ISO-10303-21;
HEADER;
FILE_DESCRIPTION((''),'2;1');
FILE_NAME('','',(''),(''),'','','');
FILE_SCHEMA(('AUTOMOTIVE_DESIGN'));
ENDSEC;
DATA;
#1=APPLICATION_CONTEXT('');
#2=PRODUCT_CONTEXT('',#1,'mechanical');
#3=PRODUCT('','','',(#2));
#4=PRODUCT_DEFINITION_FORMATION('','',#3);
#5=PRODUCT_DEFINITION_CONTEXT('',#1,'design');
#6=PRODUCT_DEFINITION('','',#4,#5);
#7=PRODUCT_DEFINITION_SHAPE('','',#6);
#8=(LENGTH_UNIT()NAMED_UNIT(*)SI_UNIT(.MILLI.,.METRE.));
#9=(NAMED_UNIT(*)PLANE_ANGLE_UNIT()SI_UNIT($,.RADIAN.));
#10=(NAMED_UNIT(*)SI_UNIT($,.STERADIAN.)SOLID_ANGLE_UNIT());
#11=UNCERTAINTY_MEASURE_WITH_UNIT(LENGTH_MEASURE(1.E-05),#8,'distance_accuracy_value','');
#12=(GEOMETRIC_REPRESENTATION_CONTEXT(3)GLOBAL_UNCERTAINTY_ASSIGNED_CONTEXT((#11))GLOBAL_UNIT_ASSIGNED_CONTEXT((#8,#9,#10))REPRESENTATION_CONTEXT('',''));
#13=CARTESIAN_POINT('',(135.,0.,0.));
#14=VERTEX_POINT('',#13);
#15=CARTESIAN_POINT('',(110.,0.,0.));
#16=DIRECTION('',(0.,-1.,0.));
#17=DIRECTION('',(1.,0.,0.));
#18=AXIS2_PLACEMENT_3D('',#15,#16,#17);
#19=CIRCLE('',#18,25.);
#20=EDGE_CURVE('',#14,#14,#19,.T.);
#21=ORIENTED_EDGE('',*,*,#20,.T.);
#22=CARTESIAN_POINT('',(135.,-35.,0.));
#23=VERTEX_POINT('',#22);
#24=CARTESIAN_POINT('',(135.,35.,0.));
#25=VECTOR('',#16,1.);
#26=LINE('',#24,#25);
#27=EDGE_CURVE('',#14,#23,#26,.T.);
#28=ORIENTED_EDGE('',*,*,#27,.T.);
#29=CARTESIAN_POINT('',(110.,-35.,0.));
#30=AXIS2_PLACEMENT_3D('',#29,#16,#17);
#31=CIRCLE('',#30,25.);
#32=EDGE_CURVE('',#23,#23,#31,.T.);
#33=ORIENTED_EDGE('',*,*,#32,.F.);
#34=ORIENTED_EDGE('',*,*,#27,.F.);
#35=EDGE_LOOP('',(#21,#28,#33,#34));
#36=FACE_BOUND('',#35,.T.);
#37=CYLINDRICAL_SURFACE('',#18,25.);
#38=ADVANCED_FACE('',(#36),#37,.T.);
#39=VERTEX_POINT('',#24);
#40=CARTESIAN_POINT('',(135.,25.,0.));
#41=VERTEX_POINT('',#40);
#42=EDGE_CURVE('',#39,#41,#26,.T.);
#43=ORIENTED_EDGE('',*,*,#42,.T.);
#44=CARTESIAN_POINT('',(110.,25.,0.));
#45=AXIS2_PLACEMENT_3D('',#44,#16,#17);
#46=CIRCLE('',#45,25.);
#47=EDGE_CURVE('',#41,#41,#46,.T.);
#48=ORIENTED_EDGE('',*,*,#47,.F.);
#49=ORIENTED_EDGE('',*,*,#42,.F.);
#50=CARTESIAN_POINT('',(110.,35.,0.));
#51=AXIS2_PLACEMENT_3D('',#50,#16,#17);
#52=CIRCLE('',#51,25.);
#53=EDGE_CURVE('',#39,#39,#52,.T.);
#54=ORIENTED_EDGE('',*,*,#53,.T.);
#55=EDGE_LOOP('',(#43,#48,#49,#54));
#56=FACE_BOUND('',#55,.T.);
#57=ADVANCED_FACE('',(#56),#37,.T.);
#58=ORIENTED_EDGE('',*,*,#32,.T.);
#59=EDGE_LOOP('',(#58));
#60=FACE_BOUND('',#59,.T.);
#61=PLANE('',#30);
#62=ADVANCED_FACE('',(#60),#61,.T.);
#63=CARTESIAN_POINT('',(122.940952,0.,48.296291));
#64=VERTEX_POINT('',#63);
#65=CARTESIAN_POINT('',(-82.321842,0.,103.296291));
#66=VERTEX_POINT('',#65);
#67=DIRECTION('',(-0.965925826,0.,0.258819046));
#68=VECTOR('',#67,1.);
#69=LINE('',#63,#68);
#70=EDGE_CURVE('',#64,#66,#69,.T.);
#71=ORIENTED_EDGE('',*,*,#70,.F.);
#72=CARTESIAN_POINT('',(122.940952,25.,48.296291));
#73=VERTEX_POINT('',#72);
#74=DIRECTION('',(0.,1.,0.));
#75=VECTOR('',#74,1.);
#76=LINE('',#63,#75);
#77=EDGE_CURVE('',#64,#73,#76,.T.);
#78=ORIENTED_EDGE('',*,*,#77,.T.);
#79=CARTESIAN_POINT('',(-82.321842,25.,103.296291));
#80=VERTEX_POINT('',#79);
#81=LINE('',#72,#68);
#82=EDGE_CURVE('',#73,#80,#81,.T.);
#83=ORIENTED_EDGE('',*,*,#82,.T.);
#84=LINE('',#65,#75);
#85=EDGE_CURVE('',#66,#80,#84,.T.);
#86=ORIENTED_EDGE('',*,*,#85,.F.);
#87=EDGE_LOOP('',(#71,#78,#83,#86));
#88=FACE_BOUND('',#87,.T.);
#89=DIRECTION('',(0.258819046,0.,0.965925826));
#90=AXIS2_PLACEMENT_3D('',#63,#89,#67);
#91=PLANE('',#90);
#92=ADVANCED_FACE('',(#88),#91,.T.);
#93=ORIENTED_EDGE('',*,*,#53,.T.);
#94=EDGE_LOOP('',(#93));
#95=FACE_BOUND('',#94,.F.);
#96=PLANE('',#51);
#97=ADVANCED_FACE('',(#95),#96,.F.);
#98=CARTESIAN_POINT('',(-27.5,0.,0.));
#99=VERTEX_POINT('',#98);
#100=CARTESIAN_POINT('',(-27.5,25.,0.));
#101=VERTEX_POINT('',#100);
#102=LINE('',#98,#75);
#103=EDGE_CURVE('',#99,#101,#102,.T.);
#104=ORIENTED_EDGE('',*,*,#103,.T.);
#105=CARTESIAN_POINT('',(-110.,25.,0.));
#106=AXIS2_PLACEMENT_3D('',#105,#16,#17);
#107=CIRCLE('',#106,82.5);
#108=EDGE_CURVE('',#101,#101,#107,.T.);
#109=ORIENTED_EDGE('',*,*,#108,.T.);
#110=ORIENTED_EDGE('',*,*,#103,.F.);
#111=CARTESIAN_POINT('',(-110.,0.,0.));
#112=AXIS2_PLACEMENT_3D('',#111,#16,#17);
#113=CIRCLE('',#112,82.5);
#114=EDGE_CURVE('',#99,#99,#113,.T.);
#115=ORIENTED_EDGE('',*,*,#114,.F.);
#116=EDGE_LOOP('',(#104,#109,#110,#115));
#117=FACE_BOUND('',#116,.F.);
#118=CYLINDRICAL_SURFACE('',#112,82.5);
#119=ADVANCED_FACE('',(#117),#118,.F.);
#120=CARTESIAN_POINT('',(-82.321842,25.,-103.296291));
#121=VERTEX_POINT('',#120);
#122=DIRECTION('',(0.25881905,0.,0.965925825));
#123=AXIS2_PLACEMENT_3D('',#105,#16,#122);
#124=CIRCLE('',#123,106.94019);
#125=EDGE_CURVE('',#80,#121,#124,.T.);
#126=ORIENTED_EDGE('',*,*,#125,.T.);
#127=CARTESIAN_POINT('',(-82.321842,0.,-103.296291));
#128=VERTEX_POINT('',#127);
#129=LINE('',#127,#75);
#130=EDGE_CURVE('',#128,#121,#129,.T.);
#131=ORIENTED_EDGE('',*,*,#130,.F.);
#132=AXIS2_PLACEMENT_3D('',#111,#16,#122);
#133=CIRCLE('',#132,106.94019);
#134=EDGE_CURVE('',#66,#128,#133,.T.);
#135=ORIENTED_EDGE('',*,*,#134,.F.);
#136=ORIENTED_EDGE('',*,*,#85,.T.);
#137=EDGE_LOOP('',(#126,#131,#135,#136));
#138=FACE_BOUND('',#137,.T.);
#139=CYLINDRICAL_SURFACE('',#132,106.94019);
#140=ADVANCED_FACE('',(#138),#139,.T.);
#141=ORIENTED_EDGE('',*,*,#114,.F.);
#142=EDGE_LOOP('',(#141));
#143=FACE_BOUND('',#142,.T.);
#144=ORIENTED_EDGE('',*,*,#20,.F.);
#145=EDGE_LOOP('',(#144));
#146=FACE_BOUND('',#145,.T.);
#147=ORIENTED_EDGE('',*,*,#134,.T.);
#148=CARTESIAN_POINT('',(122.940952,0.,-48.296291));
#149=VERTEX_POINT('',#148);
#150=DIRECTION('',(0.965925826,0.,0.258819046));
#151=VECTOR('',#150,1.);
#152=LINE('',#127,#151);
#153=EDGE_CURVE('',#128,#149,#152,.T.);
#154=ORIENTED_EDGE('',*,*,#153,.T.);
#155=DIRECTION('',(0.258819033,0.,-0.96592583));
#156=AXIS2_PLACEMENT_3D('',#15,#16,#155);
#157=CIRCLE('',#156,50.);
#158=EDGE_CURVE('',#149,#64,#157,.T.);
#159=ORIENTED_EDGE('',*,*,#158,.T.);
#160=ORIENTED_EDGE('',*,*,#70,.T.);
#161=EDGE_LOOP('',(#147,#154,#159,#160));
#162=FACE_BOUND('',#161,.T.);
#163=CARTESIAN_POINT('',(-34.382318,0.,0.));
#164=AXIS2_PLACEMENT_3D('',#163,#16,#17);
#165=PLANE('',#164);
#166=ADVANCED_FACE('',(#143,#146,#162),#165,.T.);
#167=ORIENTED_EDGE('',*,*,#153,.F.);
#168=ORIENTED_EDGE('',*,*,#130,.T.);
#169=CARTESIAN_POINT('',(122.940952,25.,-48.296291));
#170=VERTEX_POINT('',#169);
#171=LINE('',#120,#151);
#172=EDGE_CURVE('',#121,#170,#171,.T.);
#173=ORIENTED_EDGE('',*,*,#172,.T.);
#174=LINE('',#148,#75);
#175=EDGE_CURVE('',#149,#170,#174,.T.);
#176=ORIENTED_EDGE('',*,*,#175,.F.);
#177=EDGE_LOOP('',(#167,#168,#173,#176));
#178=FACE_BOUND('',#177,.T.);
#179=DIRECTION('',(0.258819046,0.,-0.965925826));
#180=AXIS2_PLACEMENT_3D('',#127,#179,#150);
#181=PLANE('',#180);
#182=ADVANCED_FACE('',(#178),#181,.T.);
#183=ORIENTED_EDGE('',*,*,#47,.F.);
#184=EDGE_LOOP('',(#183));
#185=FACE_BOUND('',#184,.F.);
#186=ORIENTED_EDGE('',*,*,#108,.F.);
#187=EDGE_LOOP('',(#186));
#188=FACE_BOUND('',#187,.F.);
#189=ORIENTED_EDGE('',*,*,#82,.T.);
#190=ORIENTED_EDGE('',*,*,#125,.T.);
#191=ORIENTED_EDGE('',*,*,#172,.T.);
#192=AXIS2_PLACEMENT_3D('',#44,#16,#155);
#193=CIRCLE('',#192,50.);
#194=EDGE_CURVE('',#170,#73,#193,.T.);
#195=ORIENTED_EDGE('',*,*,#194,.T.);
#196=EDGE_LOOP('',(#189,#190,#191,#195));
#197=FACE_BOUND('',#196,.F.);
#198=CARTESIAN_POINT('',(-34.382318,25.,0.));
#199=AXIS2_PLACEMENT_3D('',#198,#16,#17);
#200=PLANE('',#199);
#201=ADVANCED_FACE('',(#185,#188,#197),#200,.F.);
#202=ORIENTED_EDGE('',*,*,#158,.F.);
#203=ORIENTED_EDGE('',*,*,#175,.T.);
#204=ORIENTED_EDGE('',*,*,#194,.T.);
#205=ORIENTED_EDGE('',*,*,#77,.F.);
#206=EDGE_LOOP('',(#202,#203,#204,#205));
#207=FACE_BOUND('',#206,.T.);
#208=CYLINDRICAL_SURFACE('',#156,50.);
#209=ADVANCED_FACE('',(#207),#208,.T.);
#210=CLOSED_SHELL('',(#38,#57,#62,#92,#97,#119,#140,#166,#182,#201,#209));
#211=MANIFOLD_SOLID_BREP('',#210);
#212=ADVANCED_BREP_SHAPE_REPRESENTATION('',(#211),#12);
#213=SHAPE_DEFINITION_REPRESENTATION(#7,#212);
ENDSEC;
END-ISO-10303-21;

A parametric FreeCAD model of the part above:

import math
import FreeCAD as App
import Part
import Sketcher
Q = App.Units.Quantity

doc = App.newDocument("Part")
body = doc.addObject("PartDesign::Body", "Body")

# Sketch on XZ plane
sketch1 = doc.addObject("Sketcher::SketchObject", "Sketch")
body.addObject(sketch1)
sketch1.AttachmentSupport = (doc.XZ_Plane, [""])
sketch1.MapMode = "FlatFace"
sketch1.addGeometry(Part.LineSegment(App.Vector(122.940952, 48.296291, 0), App.Vector(-82.321842, 103.296291, 0)), False)
sketch1.addGeometry(Part.ArcOfCircle(Part.Circle(App.Vector(-110, 0, 0), App.Vector(0, 0, 1), 106.94019), math.radians(75), math.radians(285)), False)
sketch1.addGeometry(Part.LineSegment(App.Vector(-82.321842, -103.296291, 0), App.Vector(122.940952, -48.296291, 0)), False)
sketch1.addGeometry(Part.ArcOfCircle(Part.Circle(App.Vector(110, 0, 0), App.Vector(0, 0, 1), 50), math.radians(-75.000001), math.radians(75.000001)), False)
sketch1.addGeometry(Part.Circle(App.Vector(-110, 0, 0), App.Vector(0, 0, 1), 82.5), False)
sketch1.addGeometry(Part.Circle(App.Vector(110, 0, 0), App.Vector(0, 0, 1), 25), False)
sketch1.addConstraint(Sketcher.Constraint("Tangent", 0, 2, 1, 1))
sketch1.addConstraint(Sketcher.Constraint("Tangent", 1, 2, 2, 1))
sketch1.addConstraint(Sketcher.Constraint("Tangent", 2, 2, 3, 1))
sketch1.addConstraint(Sketcher.Constraint("Tangent", 3, 2, 0, 1))
sketch1.addConstraint(Sketcher.Constraint("Coincident", 4, 3, 1, 3))
sketch1.addConstraint(Sketcher.Constraint("Coincident", 5, 3, 3, 3))
sketch1.addConstraint(Sketcher.Constraint("Symmetric", 1, 3, 3, 3, -1, 1))
sketch1.addConstraint(Sketcher.Constraint("PointOnObject", 1, 3, -1))
sketch1.addConstraint(Sketcher.Constraint("Diameter", 4, 165.0))
sketch1.addConstraint(Sketcher.Constraint("Diameter", 5, 50.0))
sketch1.addConstraint(Sketcher.Constraint("Radius", 3, 50.0))
sketch1.addConstraint(Sketcher.Constraint("Angle", 0, Q("165 deg")))
sketch1.addConstraint(Sketcher.Constraint("DistanceX", 1, 3, -1, 1, 110.0))
pad1 = doc.addObject("PartDesign::Pad", "Pad")
body.addObject(pad1)
pad1.Profile = sketch1
pad1.Length = 25
pad1.Reversed = True

# Sketch on XZ plane
sketch2 = doc.addObject("Sketcher::SketchObject", "Sketch001")
body.addObject(sketch2)
sketch2.AttachmentSupport = (doc.XZ_Plane, [""])
sketch2.MapMode = "FlatFace"
sketch2.addGeometry(Part.Circle(App.Vector(110, 0, 0), App.Vector(0, 0, 1), 25), False)
sketch2.addConstraint(Sketcher.Constraint("PointOnObject", 0, 3, -1))
sketch2.addConstraint(Sketcher.Constraint("Diameter", 0, 50.0))
sketch2.addConstraint(Sketcher.Constraint("DistanceX", -1, 1, 0, 3, 110.0))
pad2 = doc.addObject("PartDesign::Pad", "Pad001")
body.addObject(pad2)
pad2.Profile = sketch2
pad2.Length = 70
pad2.Midplane = True

doc.recompute()
